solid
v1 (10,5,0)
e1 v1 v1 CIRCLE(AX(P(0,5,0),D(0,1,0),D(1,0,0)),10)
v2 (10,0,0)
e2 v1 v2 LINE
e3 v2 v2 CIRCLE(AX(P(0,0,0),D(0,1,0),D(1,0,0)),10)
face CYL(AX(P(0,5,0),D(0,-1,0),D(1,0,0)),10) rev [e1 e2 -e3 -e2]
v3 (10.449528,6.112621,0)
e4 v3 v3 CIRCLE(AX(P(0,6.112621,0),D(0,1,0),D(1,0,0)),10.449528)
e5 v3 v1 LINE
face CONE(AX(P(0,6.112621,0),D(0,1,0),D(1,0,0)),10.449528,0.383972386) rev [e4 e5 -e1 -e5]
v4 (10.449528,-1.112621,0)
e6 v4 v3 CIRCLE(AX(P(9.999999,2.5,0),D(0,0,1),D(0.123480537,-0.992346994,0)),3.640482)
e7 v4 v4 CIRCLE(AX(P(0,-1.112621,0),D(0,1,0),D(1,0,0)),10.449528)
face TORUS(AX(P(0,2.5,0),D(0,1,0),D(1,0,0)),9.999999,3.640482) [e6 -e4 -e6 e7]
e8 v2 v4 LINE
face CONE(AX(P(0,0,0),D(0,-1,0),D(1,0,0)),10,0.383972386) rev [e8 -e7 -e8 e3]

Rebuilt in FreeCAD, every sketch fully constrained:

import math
import FreeCAD as App
import Part
import Sketcher
from FreeCAD import Vector
Q = App.Units.Quantity

doc = App.newDocument("Part")
body = doc.addObject("PartDesign::Body", "Body")

sketch1 = body.newObject("Sketcher::SketchObject", "Sketch")
sketch1.AttachmentSupport = (doc.getObject("XY_Plane"), [""])
sketch1.MapMode = "FlatFace"
sketch1.addGeometry([
    Part.LineSegment(Vector(10, 5, 0), Vector(10, 0, 0)),
    Part.LineSegment(Vector(10, 0, 0), Vector(10.4, -1.1, 0)),
    Part.ArcOfCircle(Part.Circle(Vector(10, 2.5, 0), Vector(0, 0, 1), 3.6), math.radians(-83), math.radians(83)),
    Part.LineSegment(Vector(10.4, 6.1, 0), Vector(10, 5, 0)),
], False)
sketch1.addConstraint([
    Sketcher.Constraint("Coincident", 0, 2, 1, 1),
    Sketcher.Constraint("Coincident", 1, 2, 2, 1),
    Sketcher.Constraint("Coincident", 2, 2, 3, 1),
    Sketcher.Constraint("Coincident", 3, 2, 0, 1),
    Sketcher.Constraint("Vertical", 0),
    Sketcher.Constraint("PointOnObject", 0, 2, -1),
    Sketcher.Constraint("Vertical", 2, 3, 0, 2),
    Sketcher.Constraint("Vertical", 1, 2, 2, 2),
    Sketcher.Constraint("Equal", 1, 3),
    Sketcher.Constraint("DistanceY", 0, 2, 0, 1, 5.0),
    Sketcher.Constraint("Angle", 1, Q("-68.000003 deg")),
    Sketcher.Constraint("DistanceX", -1, 1, 2, 3, 9.999999),
    Sketcher.Constraint("Distance", 1, 1.2),
])
revolution = body.newObject("PartDesign::Revolution", "Revolution")
revolution.Profile = sketch1
revolution.ReferenceAxis = (sketch1, ["V_Axis"])
revolution.Angle = 360

doc.recompute()
